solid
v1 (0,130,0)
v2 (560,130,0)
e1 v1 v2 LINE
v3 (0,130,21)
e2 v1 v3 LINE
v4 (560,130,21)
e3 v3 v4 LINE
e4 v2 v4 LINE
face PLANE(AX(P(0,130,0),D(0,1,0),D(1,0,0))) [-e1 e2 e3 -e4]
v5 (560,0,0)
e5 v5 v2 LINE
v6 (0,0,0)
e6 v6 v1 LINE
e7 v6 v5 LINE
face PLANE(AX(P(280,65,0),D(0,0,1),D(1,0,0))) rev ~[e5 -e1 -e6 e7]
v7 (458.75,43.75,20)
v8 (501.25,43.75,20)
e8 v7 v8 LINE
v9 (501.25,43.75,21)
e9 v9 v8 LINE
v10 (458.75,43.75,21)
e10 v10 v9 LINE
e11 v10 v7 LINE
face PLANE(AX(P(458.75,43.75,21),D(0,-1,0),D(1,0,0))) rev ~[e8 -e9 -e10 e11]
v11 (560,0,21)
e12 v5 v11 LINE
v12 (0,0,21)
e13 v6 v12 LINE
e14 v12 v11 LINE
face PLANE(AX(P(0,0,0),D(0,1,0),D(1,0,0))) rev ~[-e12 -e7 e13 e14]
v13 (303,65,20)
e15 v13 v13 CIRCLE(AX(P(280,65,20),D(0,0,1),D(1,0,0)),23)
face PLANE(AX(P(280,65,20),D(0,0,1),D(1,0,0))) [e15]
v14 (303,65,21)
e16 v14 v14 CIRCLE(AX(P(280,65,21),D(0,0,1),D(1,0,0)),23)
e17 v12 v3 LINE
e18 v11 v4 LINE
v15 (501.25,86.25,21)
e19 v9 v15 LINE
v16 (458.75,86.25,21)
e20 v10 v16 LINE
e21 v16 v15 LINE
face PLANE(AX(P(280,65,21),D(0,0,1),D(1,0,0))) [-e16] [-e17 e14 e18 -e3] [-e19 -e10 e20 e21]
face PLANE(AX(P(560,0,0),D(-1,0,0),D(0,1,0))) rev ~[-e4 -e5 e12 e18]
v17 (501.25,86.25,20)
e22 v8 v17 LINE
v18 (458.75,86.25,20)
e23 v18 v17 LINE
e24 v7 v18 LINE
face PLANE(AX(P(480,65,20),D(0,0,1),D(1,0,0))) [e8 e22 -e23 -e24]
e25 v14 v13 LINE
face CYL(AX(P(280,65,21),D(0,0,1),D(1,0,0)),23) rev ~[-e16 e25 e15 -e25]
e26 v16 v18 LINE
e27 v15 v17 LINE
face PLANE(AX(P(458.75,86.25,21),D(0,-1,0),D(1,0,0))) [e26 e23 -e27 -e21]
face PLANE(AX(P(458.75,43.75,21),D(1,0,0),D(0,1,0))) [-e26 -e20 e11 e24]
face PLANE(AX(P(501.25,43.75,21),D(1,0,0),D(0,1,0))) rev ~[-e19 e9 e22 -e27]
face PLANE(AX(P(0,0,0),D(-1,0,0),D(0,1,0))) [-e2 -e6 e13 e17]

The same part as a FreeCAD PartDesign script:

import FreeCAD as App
import Part
import Sketcher
Q = App.Units.Quantity


def add_polygon(sketch, points):
    """Adds a closed chain of lines whose ends are joined by coincident constraints."""
    first, n = sketch.GeometryCount, len(points)
    for a, b in zip(points, points[1:] + points[:1]):
        sketch.addGeometry(Part.LineSegment(App.Vector(*a, 0), App.Vector(*b, 0)), False)
    for i in range(n):
        sketch.addConstraint(Sketcher.Constraint("Coincident", first + i, 2, first + (i + 1) % n, 1))

doc = App.newDocument("Part")
body = doc.addObject("PartDesign::Body", "Body")

sketch1 = body.newObject("Sketcher::SketchObject", "Sketch")
sketch1.AttachmentSupport = (doc.getObject("XY_Plane"), [""])
sketch1.MapMode = "FlatFace"
add_polygon(sketch1, [(0, 130), (0, 0), (560, 0), (560, 130)])
sketch1.addConstraint(Sketcher.Constraint("Vertical", 0))
sketch1.addConstraint(Sketcher.Constraint("Horizontal", 1))
sketch1.addConstraint(Sketcher.Constraint("Vertical", 2))
sketch1.addConstraint(Sketcher.Constraint("Horizontal", 3))
sketch1.addConstraint(Sketcher.Constraint("Coincident", 0, 2, -1, 1))
sketch1.addConstraint(Sketcher.Constraint("DistanceX", 1, 1, 1, 2, Q("560 mm")))
sketch1.addConstraint(Sketcher.Constraint("DistanceY", 0, 2, 0, 1, Q("130 mm")))
pad1 = body.newObject("PartDesign::Pad", "Pad")
pad1.Profile = sketch1
pad1.Length = 21

sketch2 = body.newObject("Sketcher::SketchObject", "Sketch001")
sketch2.AttachmentSupport = (doc.getObject("XY_Plane"), [""])
sketch2.MapMode = "FlatFace"
sketch2.AttachmentOffset = App.Placement(App.Vector(0, 0, 21), App.Rotation())
sketch2.addGeometry(Part.Circle(App.Vector(280, 65, 0), App.Vector(0, 0, 1), 23), False)
add_polygon(sketch2, [(458.75, 86.25), (458.75, 43.75), (501.25, 43.75), (501.25, 86.25)])
sketch2.addConstraint(Sketcher.Constraint("Vertical", 1))
sketch2.addConstraint(Sketcher.Constraint("Horizontal", 2))
sketch2.addConstraint(Sketcher.Constraint("Vertical", 3))
sketch2.addConstraint(Sketcher.Constraint("Horizontal", 4))
sketch2.addConstraint(Sketcher.Constraint("Equal", 4, 1))
sketch2.addConstraint(Sketcher.Constraint("Diameter", 0, Q("46 mm")))
sketch2.addConstraint(Sketcher.Constraint("DistanceX", 2, 1, 2, 2, Q("42.5 mm")))
sketch2.addConstraint(Sketcher.Constraint("DistanceX", -1, 1, 0, 3, Q("280 mm")))
sketch2.addConstraint(Sketcher.Constraint("DistanceY", -1, 1, 0, 3, Q("65 mm")))
sketch2.addConstraint(Sketcher.Constraint("DistanceX", -1, 1, 1, 2, Q("458.75 mm")))
sketch2.addConstraint(Sketcher.Constraint("DistanceY", -1, 1, 1, 2, Q("43.75 mm")))
pocket1 = body.newObject("PartDesign::Pocket", "Pocket")
pocket1.Profile = sketch2
pocket1.Length = 1

doc.recompute()
